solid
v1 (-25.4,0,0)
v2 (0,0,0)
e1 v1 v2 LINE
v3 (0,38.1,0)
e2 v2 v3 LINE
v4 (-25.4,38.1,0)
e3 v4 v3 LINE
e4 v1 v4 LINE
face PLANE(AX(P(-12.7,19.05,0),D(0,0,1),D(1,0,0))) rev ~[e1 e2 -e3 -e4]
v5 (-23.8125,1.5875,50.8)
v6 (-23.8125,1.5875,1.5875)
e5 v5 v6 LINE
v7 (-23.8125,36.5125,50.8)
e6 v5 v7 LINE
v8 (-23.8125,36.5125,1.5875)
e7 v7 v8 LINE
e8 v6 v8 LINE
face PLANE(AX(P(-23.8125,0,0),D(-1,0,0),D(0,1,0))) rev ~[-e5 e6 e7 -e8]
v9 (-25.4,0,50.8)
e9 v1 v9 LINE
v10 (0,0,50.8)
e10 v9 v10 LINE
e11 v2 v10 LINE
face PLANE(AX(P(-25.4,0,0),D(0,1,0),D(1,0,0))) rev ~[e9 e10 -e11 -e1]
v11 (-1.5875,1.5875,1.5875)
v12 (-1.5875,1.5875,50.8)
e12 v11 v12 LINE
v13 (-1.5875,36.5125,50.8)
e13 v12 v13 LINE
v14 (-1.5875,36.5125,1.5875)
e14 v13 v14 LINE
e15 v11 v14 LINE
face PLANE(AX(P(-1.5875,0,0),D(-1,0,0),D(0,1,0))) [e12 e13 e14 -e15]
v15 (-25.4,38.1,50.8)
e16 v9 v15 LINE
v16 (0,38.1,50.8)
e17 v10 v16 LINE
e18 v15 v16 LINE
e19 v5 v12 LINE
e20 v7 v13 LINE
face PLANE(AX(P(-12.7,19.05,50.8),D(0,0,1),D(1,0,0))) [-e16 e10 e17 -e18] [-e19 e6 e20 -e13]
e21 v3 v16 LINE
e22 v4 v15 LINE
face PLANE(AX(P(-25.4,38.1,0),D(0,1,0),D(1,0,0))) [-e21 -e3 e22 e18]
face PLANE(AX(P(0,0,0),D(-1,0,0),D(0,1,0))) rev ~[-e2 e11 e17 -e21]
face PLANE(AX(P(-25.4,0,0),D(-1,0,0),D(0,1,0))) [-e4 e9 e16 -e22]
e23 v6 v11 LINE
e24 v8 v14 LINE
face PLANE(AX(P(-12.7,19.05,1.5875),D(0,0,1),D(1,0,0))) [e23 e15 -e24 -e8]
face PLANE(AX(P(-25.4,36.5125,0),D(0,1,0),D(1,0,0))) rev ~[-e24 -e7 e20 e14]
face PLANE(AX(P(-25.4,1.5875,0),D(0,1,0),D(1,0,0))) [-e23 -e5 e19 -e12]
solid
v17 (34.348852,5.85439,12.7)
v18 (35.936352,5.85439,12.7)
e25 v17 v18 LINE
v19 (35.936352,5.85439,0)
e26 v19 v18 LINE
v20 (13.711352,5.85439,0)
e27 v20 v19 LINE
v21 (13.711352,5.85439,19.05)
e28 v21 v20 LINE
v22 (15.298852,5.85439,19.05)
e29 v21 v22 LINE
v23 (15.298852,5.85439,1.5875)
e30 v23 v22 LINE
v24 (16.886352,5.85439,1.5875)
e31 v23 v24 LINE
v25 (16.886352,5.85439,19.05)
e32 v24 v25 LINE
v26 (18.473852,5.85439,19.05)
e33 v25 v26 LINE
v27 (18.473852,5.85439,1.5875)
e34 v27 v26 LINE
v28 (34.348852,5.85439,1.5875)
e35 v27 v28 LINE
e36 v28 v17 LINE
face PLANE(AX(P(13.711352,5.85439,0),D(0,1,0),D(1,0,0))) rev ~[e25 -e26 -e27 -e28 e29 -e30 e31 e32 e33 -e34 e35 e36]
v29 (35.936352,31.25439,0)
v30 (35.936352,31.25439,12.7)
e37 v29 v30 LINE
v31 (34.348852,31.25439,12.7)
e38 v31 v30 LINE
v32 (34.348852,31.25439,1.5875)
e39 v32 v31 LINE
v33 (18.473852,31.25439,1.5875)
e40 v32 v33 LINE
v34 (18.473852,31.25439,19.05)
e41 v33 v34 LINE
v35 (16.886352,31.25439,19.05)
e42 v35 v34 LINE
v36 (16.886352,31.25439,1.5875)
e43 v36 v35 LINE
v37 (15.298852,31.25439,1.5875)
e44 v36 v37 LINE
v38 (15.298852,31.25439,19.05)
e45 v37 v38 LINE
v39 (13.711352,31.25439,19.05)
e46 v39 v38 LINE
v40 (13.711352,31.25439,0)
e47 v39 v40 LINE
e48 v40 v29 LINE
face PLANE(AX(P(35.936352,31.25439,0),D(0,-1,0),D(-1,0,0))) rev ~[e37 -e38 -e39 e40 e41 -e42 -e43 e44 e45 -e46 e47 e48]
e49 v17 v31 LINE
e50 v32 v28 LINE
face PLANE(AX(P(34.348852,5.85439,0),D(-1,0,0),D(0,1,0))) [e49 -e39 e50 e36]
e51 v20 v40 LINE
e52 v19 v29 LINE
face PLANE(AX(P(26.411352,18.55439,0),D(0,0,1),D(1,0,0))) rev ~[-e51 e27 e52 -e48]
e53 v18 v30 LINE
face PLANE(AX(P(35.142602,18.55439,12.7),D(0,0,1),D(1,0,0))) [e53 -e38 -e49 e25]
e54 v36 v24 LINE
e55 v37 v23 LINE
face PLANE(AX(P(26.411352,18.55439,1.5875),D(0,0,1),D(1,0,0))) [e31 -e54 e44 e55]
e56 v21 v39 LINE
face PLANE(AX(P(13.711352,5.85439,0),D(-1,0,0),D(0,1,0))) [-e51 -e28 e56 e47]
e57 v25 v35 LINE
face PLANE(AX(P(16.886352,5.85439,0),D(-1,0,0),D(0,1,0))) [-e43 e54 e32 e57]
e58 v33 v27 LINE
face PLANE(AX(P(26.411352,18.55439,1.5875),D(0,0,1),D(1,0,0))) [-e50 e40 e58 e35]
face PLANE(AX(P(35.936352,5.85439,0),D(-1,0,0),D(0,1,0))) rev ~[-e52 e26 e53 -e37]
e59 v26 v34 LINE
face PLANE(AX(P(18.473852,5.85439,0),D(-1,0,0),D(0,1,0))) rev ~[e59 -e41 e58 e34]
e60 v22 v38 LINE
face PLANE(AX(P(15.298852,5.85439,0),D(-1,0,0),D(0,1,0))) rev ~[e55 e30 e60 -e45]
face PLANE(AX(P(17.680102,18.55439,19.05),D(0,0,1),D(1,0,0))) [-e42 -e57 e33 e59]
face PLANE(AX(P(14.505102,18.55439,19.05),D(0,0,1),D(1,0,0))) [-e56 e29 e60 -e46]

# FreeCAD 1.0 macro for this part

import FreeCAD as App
import Part
import Sketcher
from FreeCAD import Vector
Q = App.Units.Quantity


def faces_at(feature, points):
    """Names of the faces that lie closest to the given points."""
    faces = feature.Shape.Faces
    near = lambda p: min(range(len(faces)), key=lambda i: faces[i].distToShape(Part.Vertex(*p))[0])
    return sorted({f"Face{near(p) + 1}" for p in points})

doc = App.newDocument("Part")
body = doc.addObject("PartDesign::Body", "Body")

# Sketch on XY plane
sketch1 = body.newObject("Sketcher::SketchObject", "Sketch")
sketch1.AttachmentSupport = (doc.getObject("XY_Plane"), [""])
sketch1.MapMode = "FlatFace"
sketch1.addGeometry(Part.LineSegment(Vector(-25, 38, 0), Vector(-25, 0, 0)), False)
sketch1.addGeometry(Part.LineSegment(Vector(-25, 0, 0), Vector(0, 0, 0)), False)
sketch1.addGeometry(Part.LineSegment(Vector(0, 0, 0), Vector(0, 38, 0)), False)
sketch1.addGeometry(Part.LineSegment(Vector(0, 38, 0), Vector(-25, 38, 0)), False)
sketch1.addConstraint(Sketcher.Constraint("Coincident", 0, 2, 1, 1))
sketch1.addConstraint(Sketcher.Constraint("Coincident", 1, 2, 2, 1))
sketch1.addConstraint(Sketcher.Constraint("Coincident", 2, 2, 3, 1))
sketch1.addConstraint(Sketcher.Constraint("Coincident", 3, 2, 0, 1))
sketch1.addConstraint(Sketcher.Constraint("Vertical", 0))
sketch1.addConstraint(Sketcher.Constraint("Horizontal", 1))
sketch1.addConstraint(Sketcher.Constraint("Vertical", 2))
sketch1.addConstraint(Sketcher.Constraint("Horizontal", 3))
sketch1.addConstraint(Sketcher.Constraint("Coincident", 1, 2, -1, 1))
sketch1.addConstraint(Sketcher.Constraint("DistanceX", 1, 1, 1, 2, Q("1 in")))
sketch1.addConstraint(Sketcher.Constraint("DistanceY", 0, 2, 0, 1, Q("1.5 in")))
pad1 = body.newObject("PartDesign::Pad", "Pad")
pad1.Profile = sketch1
pad1.Length = Q("2 in")
doc.recompute()

thickness = body.newObject("PartDesign::Thickness", "Thickness")
thickness.Base = (pad1, faces_at(pad1, [(-12.7, 19.05, 50.8)]))
thickness.Value = Q("0.0625 in")
thickness.Reversed = True
thickness.Join = "Arc"
body2 = doc.addObject("PartDesign::Body", "Body001")

# Sketch on XY plane
sketch2 = body2.newObject("Sketcher::SketchObject", "Sketch001")
sketch2.AttachmentSupport = (doc.getObject("XY_Plane001"), [""])
sketch2.MapMode = "FlatFace"
sketch2.addGeometry(Part.LineSegment(Vector(36, 6, 0), Vector(36, 31, 0)), False)
sketch2.addGeometry(Part.LineSegment(Vector(36, 31, 0), Vector(14, 31, 0)), False)
sketch2.addGeometry(Part.LineSegment(Vector(14, 31, 0), Vector(14, 6, 0)), False)
sketch2.addGeometry(Part.LineSegment(Vector(14, 6, 0), Vector(36, 6, 0)), False)
sketch2.addConstraint(Sketcher.Constraint("Coincident", 0, 2, 1, 1))
sketch2.addConstraint(Sketcher.Constraint("Coincident", 1, 2, 2, 1))
sketch2.addConstraint(Sketcher.Constraint("Coincident", 2, 2, 3, 1))
sketch2.addConstraint(Sketcher.Constraint("Coincident", 3, 2, 0, 1))
sketch2.addConstraint(Sketcher.Constraint("Vertical", 0))
sketch2.addConstraint(Sketcher.Constraint("Horizontal", 1))
sketch2.addConstraint(Sketcher.Constraint("Vertical", 2))
sketch2.addConstraint(Sketcher.Constraint("Horizontal", 3))
sketch2.addConstraint(Sketcher.Constraint("DistanceY", 0, 1, 0, 2, Q("1 in")))
sketch2.addConstraint(Sketcher.Constraint("DistanceX", 1, 2, 1, 1, Q("0.875 in")))
sketch2.addConstraint(Sketcher.Constraint("DistanceY", -1, 1, 0, 2, 31.25439))
sketch2.addConstraint(Sketcher.Constraint("DistanceX", -1, 1, 0, 2, 35.936352))
pad2 = body2.newObject("PartDesign::Pad", "Pad001")
pad2.Profile = sketch2
pad2.Length = Q("0.0625 in")

# Sketch on XY plane
sketch3 = body2.newObject("Sketcher::SketchObject", "Sketch002")
sketch3.AttachmentSupport = (doc.getObject("XY_Plane001"), [""])
sketch3.MapMode = "FlatFace"
sketch3.addGeometry(Part.LineSegment(Vector(13.7, 31.3, 0), Vector(13.7, 5.9, 0)), False)
sketch3.addGeometry(Part.LineSegment(Vector(13.7, 5.9, 0), Vector(15.3, 5.9, 0)), False)
sketch3.addGeometry(Part.LineSegment(Vector(15.3, 5.9, 0), Vector(15.3, 31.3, 0)), False)
sketch3.addGeometry(Part.LineSegment(Vector(15.3, 31.3, 0), Vector(13.7, 31.3, 0)), False)
sketch3.addGeometry(Part.LineSegment(Vector(16.9, 31.3, 0), Vector(16.9, 5.9, 0)), False)
sketch3.addGeometry(Part.LineSegment(Vector(16.9, 5.9, 0), Vector(18.5, 5.9, 0)), False)
sketch3.addGeometry(Part.LineSegment(Vector(18.5, 5.9, 0), Vector(18.5, 31.3, 0)), False)
sketch3.addGeometry(Part.LineSegment(Vector(18.5, 31.3, 0), Vector(16.9, 31.3, 0)), False)
sketch3.addConstraint(Sketcher.Constraint("Coincident", 0, 2, 1, 1))
sketch3.addConstraint(Sketcher.Constraint("Coincident", 1, 2, 2, 1))
sketch3.addConstraint(Sketcher.Constraint("Coincident", 2, 2, 3, 1))
sketch3.addConstraint(Sketcher.Constraint("Coincident", 3, 2, 0, 1))
sketch3.addConstraint(Sketcher.Constraint("Coincident", 4, 2, 5, 1))
sketch3.addConstraint(Sketcher.Constraint("Coincident", 5, 2, 6, 1))
sketch3.addConstraint(Sketcher.Constraint("Coincident", 6, 2, 7, 1))
sketch3.addConstraint(Sketcher.Constraint("Coincident", 7, 2, 4, 1))
sketch3.addConstraint(Sketcher.Constraint("Vertical", 0))
sketch3.addConstraint(Sketcher.Constraint("Horizontal", 1))
sketch3.addConstraint(Sketcher.Constraint("Vertical", 2))
sketch3.addConstraint(Sketcher.Constraint("Horizontal", 3))
sketch3.addConstraint(Sketcher.Constraint("Vertical", 4))
sketch3.addConstraint(Sketcher.Constraint("Horizontal", 5))
sketch3.addConstraint(Sketcher.Constraint("Vertical", 6))
sketch3.addConstraint(Sketcher.Constraint("Horizontal", 7))
sketch3.addConstraint(Sketcher.Constraint("Horizontal", 1, 2, 4, 2))
sketch3.addConstraint(Sketcher.Constraint("Horizontal", 3, 2, 6, 2))
sketch3.addConstraint(Sketcher.Constraint("Equal", 3, 5))
sketch3.addConstraint(Sketcher.Constraint("DistanceY", 0, 2, 0, 1, Q("1 in")))
sketch3.addConstraint(Sketcher.Constraint("DistanceX", 1, 1, 1, 2, Q("0.0625 in")))
sketch3.addConstraint(Sketcher.Constraint("DistanceX", 1, 2, 4, 2, Q("0.0625 in")))
sketch3.addConstraint(Sketcher.Constraint("DistanceY", -1, 1, 0, 2, 5.85439))
sketch3.addConstraint(Sketcher.Constraint("DistanceX", -1, 1, 4, 2, 16.886352))
pad3 = body2.newObject("PartDesign::Pad", "Pad002")
pad3.Profile = sketch3
pad3.Length = Q("0.75 in")

# Sketch on XY plane
sketch4 = body2.newObject("Sketcher::SketchObject", "Sketch003")
sketch4.AttachmentSupport = (doc.getObject("XY_Plane001"), [""])
sketch4.MapMode = "FlatFace"
sketch4.addGeometry(Part.LineSegment(Vector(34.3, 31.3, 0), Vector(34.3, 5.9, 0)), False)
sketch4.addGeometry(Part.LineSegment(Vector(34.3, 5.9, 0), Vector(35.9, 5.9, 0)), False)
sketch4.addGeometry(Part.LineSegment(Vector(35.9, 5.9, 0), Vector(35.9, 31.3, 0)), False)
sketch4.addGeometry(Part.LineSegment(Vector(35.9, 31.3, 0), Vector(34.3, 31.3, 0)), False)
sketch4.addConstraint(Sketcher.Constraint("Coincident", 0, 2, 1, 1))
sketch4.addConstraint(Sketcher.Constraint("Coincident", 1, 2, 2, 1))
sketch4.addConstraint(Sketcher.Constraint("Coincident", 2, 2, 3, 1))
sketch4.addConstraint(Sketcher.Constraint("Coincident", 3, 2, 0, 1))
sketch4.addConstraint(Sketcher.Constraint("Vertical", 0))
sketch4.addConstraint(Sketcher.Constraint("Horizontal", 1))
sketch4.addConstraint(Sketcher.Constraint("Vertical", 2))
sketch4.addConstraint(Sketcher.Constraint("Horizontal", 3))
sketch4.addConstraint(Sketcher.Constraint("DistanceY", 0, 2, 0, 1, Q("1 in")))
sketch4.addConstraint(Sketcher.Constraint("DistanceX", 1, 1, 1, 2, Q("0.0625 in")))
sketch4.addConstraint(Sketcher.Constraint("DistanceY", -1, 1, 0, 2, 5.85439))
sketch4.addConstraint(Sketcher.Constraint("DistanceX", -1, 1, 0, 2, 34.348852))
pad4 = body2.newObject("PartDesign::Pad", "Pad003")
pad4.Profile = sketch4
pad4.Length = Q("0.5 in")

doc.recompute()
